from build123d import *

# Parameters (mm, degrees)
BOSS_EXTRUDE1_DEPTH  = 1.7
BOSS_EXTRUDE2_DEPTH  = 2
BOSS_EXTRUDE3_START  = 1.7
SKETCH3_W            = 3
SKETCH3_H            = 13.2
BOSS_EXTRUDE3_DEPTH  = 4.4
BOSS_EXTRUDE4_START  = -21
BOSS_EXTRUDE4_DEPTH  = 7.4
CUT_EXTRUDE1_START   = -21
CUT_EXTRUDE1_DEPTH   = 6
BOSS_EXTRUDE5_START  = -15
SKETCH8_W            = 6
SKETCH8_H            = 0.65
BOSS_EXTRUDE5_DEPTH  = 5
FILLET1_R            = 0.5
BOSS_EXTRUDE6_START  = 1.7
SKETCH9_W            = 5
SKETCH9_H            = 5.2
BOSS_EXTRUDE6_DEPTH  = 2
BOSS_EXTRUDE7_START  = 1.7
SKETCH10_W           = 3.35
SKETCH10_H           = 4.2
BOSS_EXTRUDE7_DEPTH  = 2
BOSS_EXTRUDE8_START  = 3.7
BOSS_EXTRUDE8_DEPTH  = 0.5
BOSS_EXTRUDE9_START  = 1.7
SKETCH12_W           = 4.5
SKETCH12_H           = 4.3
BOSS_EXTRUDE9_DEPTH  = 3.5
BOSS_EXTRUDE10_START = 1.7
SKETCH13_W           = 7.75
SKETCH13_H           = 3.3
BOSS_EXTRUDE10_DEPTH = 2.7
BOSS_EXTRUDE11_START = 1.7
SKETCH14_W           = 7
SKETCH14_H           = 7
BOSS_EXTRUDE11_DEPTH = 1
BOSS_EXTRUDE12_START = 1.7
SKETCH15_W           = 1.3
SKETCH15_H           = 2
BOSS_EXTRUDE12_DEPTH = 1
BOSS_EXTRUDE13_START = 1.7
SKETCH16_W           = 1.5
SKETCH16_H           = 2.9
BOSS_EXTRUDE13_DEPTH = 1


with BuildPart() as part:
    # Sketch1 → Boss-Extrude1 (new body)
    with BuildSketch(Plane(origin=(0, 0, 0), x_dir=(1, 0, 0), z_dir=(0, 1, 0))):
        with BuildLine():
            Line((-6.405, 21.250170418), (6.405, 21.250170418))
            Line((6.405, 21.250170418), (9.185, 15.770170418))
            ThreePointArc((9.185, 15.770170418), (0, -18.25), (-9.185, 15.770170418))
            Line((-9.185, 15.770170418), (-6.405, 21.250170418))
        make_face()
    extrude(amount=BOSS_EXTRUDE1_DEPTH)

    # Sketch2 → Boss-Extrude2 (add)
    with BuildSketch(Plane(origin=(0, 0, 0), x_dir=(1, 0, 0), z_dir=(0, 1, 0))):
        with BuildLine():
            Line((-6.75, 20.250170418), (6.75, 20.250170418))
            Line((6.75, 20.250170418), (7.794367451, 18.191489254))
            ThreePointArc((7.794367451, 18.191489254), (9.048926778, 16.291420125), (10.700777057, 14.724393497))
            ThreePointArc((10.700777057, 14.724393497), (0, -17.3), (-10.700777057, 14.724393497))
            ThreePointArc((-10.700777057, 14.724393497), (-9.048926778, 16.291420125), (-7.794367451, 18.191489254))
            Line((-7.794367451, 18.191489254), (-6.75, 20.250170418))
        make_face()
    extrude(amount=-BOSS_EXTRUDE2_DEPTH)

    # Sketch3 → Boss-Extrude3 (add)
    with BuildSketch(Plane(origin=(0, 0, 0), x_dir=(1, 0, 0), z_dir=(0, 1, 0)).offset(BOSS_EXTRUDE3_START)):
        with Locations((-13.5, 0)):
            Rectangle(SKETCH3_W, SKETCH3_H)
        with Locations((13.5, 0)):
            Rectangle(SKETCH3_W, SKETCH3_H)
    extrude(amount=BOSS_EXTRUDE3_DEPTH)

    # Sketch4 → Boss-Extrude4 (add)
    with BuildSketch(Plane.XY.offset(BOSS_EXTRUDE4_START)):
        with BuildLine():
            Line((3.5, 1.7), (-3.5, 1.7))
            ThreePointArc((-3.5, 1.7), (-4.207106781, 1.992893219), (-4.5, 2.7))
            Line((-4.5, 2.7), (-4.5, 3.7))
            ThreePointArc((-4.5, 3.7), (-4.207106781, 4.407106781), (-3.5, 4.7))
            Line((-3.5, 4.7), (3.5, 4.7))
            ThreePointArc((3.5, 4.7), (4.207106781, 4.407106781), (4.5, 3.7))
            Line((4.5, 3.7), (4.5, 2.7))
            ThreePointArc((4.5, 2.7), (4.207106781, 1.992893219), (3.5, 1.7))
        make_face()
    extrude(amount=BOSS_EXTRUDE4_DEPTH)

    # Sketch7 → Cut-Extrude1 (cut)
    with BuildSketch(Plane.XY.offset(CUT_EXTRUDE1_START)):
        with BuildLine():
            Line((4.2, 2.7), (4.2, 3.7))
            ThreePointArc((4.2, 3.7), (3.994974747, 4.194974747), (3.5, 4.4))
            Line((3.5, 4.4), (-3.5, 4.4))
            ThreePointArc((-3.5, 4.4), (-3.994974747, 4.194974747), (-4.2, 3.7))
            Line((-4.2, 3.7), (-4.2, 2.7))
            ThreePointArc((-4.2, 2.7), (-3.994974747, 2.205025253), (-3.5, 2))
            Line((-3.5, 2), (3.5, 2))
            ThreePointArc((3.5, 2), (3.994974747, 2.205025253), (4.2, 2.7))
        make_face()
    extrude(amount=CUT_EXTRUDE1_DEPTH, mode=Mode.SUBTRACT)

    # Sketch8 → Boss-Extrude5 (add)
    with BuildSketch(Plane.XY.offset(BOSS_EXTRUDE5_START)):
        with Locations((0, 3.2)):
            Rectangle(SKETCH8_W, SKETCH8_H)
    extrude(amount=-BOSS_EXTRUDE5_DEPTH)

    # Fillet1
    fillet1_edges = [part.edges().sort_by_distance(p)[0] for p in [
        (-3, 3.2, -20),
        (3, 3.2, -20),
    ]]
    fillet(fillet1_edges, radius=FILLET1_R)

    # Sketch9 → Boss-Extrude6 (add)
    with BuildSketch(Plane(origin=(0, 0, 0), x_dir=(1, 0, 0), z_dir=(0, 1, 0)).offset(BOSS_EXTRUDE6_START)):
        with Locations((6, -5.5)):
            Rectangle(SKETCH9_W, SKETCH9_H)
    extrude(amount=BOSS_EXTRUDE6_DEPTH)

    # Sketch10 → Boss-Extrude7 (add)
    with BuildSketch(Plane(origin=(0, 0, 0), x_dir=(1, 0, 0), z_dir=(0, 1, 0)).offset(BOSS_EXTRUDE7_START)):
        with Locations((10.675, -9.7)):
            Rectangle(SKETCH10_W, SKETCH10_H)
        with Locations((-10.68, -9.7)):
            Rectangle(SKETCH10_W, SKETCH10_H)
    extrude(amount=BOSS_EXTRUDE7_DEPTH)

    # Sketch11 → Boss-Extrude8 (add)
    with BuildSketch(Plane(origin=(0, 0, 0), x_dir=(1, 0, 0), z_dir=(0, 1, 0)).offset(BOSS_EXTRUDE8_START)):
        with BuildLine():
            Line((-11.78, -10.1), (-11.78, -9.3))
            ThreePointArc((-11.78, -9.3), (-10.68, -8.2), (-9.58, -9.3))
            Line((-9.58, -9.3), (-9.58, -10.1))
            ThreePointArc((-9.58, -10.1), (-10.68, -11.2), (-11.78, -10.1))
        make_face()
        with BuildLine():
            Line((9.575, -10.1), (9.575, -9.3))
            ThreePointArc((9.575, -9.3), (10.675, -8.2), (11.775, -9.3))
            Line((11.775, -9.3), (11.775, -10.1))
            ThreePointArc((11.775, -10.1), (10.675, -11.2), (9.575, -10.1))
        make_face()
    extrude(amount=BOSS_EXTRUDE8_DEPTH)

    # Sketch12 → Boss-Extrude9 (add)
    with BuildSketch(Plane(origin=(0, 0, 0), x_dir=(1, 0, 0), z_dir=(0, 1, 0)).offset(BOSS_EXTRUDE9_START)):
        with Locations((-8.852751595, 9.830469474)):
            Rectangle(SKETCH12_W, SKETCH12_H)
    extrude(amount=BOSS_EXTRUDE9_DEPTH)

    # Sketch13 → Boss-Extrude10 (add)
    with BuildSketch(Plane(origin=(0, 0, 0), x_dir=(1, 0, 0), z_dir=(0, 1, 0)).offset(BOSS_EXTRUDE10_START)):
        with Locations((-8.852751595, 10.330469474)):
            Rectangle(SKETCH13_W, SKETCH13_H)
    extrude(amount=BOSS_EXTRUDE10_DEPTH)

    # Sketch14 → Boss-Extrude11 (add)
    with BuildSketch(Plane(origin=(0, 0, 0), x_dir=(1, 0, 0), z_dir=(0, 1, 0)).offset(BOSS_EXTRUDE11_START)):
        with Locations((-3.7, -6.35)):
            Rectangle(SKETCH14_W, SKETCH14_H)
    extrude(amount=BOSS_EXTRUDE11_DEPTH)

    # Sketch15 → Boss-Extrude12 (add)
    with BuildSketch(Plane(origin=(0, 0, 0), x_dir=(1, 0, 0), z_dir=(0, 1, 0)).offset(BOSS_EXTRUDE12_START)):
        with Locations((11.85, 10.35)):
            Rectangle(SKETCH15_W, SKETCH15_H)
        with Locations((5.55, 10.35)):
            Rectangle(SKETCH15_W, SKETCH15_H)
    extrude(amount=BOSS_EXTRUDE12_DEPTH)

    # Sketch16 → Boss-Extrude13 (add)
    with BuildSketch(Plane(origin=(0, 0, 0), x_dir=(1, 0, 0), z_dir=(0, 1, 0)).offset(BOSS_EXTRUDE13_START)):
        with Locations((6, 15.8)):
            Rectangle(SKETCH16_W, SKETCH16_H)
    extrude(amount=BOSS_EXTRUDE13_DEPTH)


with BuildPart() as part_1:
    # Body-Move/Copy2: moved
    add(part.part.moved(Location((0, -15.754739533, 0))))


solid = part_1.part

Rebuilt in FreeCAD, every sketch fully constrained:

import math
import FreeCAD as App
import Part
import Sketcher
from FreeCAD import Vector


def edges_at(feature, points):
    """Names of the edges that pass closest to the given points."""
    edges = feature.Shape.Edges
    near = lambda p: min(range(len(edges)), key=lambda i: edges[i].distToShape(Part.Vertex(*p))[0])
    return sorted({f"Edge{near(p) + 1}" for p in points})

doc = App.newDocument("Part")
body = doc.addObject("PartDesign::Body", "Body")

sketch1 = body.newObject("Sketcher::SketchObject", "Sketch")
sketch1.AttachmentSupport = (doc.getObject("XZ_Plane"), [""])
sketch1.MapMode = "FlatFace"
sketch1.addGeometry(Part.LineSegment(Vector(6, -21, 0), Vector(-6, -21, 0)), False)
sketch1.addGeometry(Part.LineSegment(Vector(-6, -21, 0), Vector(-9, -16, 0)), False)
sketch1.addGeometry(Part.ArcOfCircle(Part.Circle(Vector(0, 0, 0), Vector(0, 0, 1), 18), math.radians(-60), math.radians(240)), False)
sketch1.addGeometry(Part.LineSegment(Vector(9, -16, 0), Vector(6, -21, 0)), False)
sketch1.addConstraint(Sketcher.Constraint("Coincident", 0, 2, 1, 1))
sketch1.addConstraint(Sketcher.Constraint("Coincident", 1, 2, 2, 2))
sketch1.addConstraint(Sketcher.Constraint("Coincident", 2, 1, 3, 1))
sketch1.addConstraint(Sketcher.Constraint("Coincident", 3, 2, 0, 1))
sketch1.addConstraint(Sketcher.Constraint("Horizontal", 0))
sketch1.addConstraint(Sketcher.Constraint("Coincident", 2, 3, -1, 1))
sketch1.addConstraint(Sketcher.Constraint("Horizontal", 1, 2, 2, 1))
sketch1.addConstraint(Sketcher.Constraint("Equal", 1, 3))
sketch1.addConstraint(Sketcher.Constraint("Radius", 2, 18.25))
sketch1.addConstraint(Sketcher.Constraint("DistanceX", 0, 2, 0, 1, 12.81))
sketch1.addConstraint(Sketcher.Constraint("DistanceX", 1, 2, 0, 2, 2.78))
sketch1.addConstraint(Sketcher.Constraint("DistanceY", 0, 2, 1, 2, 5.48))
pad1 = body.newObject("PartDesign::Pad", "Pad")
pad1.Profile = sketch1
pad1.Length = 1.7
pad1.Reversed = True

sketch2 = body.newObject("Sketcher::SketchObject", "Sketch001")
sketch2.AttachmentSupport = (doc.getObject("XZ_Plane"), [""])
sketch2.MapMode = "FlatFace"
sketch2.addGeometry(Part.LineSegment(Vector(6.8, -20.3, 0), Vector(-6.8, -20.3, 0)), False)
sketch2.addGeometry(Part.LineSegment(Vector(-6.8, -20.3, 0), Vector(-7.8, -18.2, 0)), False)
sketch2.addGeometry(Part.ArcOfCircle(Part.Circle(Vector(-16.7, -22.7, 0), Vector(0, 0, 1), 10), math.radians(27), math.radians(53)), False)
sketch2.addGeometry(Part.ArcOfCircle(Part.Circle(Vector(0, -0.5, 0), Vector(0, 0, 1), 17.8), math.radians(-53), math.radians(233)), False)
sketch2.addGeometry(Part.ArcOfCircle(Part.Circle(Vector(16.7, -22.7, 0), Vector(0, 0, 1), 10), math.radians(127), math.radians(153)), False)
sketch2.addGeometry(Part.LineSegment(Vector(7.8, -18.2, 0), Vector(6.8, -20.3, 0)), False)
sketch2.addConstraint(Sketcher.Constraint("Coincident", 0, 2, 1, 1))
sketch2.addConstraint(Sketcher.Constraint("Tangent", 1, 2, 2, 1))
sketch2.addConstraint(Sketcher.Constraint("Tangent", 2, 2, 3, 2))
sketch2.addConstraint(Sketcher.Constraint("Tangent", 3, 1, 4, 1))
sketch2.addConstraint(Sketcher.Constraint("Tangent", 4, 2, 5, 1))
sketch2.addConstraint(Sketcher.Constraint("Coincident", 5, 2, 0, 1))
sketch2.addConstraint(Sketcher.Constraint("Horizontal", 0))
sketch2.addConstraint(Sketcher.Constraint("Equal", 2, 4))
sketch2.addConstraint(Sketcher.Constraint("Symmetric", 2, 3, 4, 3, -2))
sketch2.addConstraint(Sketcher.Constraint("Horizontal", 1, 2, 4, 2))
sketch2.addConstraint(Sketcher.Constraint("Radius", 2, 10.0))
sketch2.addConstraint(Sketcher.Constraint("Radius", 3, 17.8))
sketch2.addConstraint(Sketcher.Constraint("DistanceX", 0, 2, 0, 1, 13.5))
sketch2.addConstraint(Sketcher.Constraint("DistanceY", 3, 3, -1, 1, 0.5))
sketch2.addConstraint(Sketcher.Constraint("DistanceX", 2, 3, 4, 3, 33.424899))
sketch2.addConstraint(Sketcher.Constraint("DistanceY", 0, 2, -1, 1, 20.25017))
pad2 = body.newObject("PartDesign::Pad", "Pad001")
pad2.Profile = sketch2
pad2.Length = 2

sketch3 = body.newObject("Sketcher::SketchObject", "Sketch002")
sketch3.AttachmentSupport = (doc.getObject("XZ_Plane"), [""])
sketch3.MapMode = "FlatFace"
sketch3.AttachmentOffset = App.Placement(Vector(0, 0, -1.7), App.Rotation())
sketch3.addGeometry(Part.LineSegment(Vector(-15, -6.6, 0), Vector(-15, 6.6, 0)), False)
sketch3.addGeometry(Part.LineSegment(Vector(-15, 6.6, 0), Vector(-12, 6.6, 0)), False)
sketch3.addGeometry(Part.LineSegment(Vector(-12, 6.6, 0), Vector(-12, -6.6, 0)), False)
sketch3.addGeometry(Part.LineSegment(Vector(-12, -6.6, 0), Vector(-15, -6.6, 0)), False)
sketch3.addGeometry(Part.LineSegment(Vector(12, -6.6, 0), Vector(12, 6.6, 0)), False)
sketch3.addGeometry(Part.LineSegment(Vector(12, 6.6, 0), Vector(15, 6.6, 0)), False)
sketch3.addGeometry(Part.LineSegment(Vector(15, 6.6, 0), Vector(15, -6.6, 0)), False)
sketch3.addGeometry(Part.LineSegment(Vector(15, -6.6, 0), Vector(12, -6.6, 0)), False)
sketch3.addConstraint(Sketcher.Constraint("Coincident", 0, 2, 1, 1))
sketch3.addConstraint(Sketcher.Constraint("Coincident", 1, 2, 2, 1))
sketch3.addConstraint(Sketcher.Constraint("Coincident", 2, 2, 3, 1))
sketch3.addConstraint(Sketcher.Constraint("Coincident", 3, 2, 0, 1))
sketch3.addConstraint(Sketcher.Constraint("Coincident", 4, 2, 5, 1))
sketch3.addConstraint(Sketcher.Constraint("Coincident", 5, 2, 6, 1))
sketch3.addConstraint(Sketcher.Constraint("Coincident", 6, 2, 7, 1))
sketch3.addConstraint(Sketcher.Constraint("Coincident", 7, 2, 4, 1))
sketch3.addConstraint(Sketcher.Constraint("Vertical", 0))
sketch3.addConstraint(Sketcher.Constraint("Horizontal", 1))
sketch3.addConstraint(Sketcher.Constraint("Vertical", 2))
sketch3.addConstraint(Sketcher.Constraint("Horizontal", 3))
sketch3.addConstraint(Sketcher.Constraint("Vertical", 4))
sketch3.addConstraint(Sketcher.Constraint("Horizontal", 5))
sketch3.addConstraint(Sketcher.Constraint("Vertical", 6))
sketch3.addConstraint(Sketcher.Constraint("Horizontal", 7))
sketch3.addConstraint(Sketcher.Constraint("Symmetric", 2, 2, 4, 2, -1, 1))
sketch3.addConstraint(Sketcher.Constraint("Symmetric", 0, 2, 6, 2, -1, 1))
sketch3.addConstraint(Sketcher.Constraint("Horizontal", 1, 2, 4, 2))
sketch3.addConstraint(Sketcher.Constraint("DistanceX", 1, 1, 1, 2, 3.0))
sketch3.addConstraint(Sketcher.Constraint("DistanceY", 0, 1, 0, 2, 13.2))
sketch3.addConstraint(Sketcher.Constraint("DistanceX", 0, 2, -1, 1, 15.0))
pad3 = body.newObject("PartDesign::Pad", "Pad002")
pad3.Profile = sketch3
pad3.Length = 4.4
pad3.Reversed = True

sketch4 = body.newObject("Sketcher::SketchObject", "Sketch003")
sketch4.AttachmentSupport = (doc.getObject("XY_Plane"), [""])
sketch4.MapMode = "FlatFace"
sketch4.AttachmentOffset = App.Placement(Vector(0, 0, -21), App.Rotation())
sketch4.addGeometry(Part.LineSegment(Vector(-3.5, 1.7, 0), Vector(3.5, 1.7, 0)), False)
sketch4.addGeometry(Part.ArcOfCircle(Part.Circle(Vector(3.5, 2.7, 0), Vector(0, 0, 1), 1), math.radians(-90), math.radians(0)), False)
sketch4.addGeometry(Part.LineSegment(Vector(4.5, 2.7, 0), Vector(4.5, 3.7, 0)), False)
sketch4.addGeometry(Part.ArcOfCircle(Part.Circle(Vector(3.5, 3.7, 0), Vector(0, 0, 1), 1), math.radians(0), math.radians(90)), False)
sketch4.addGeometry(Part.LineSegment(Vector(3.5, 4.7, 0), Vector(-3.5, 4.7, 0)), False)
sketch4.addGeometry(Part.ArcOfCircle(Part.Circle(Vector(-3.5, 3.7, 0), Vector(0, 0, 1), 1), math.radians(90), math.radians(180)), False)
sketch4.addGeometry(Part.LineSegment(Vector(-4.5, 3.7, 0), Vector(-4.5, 2.7, 0)), False)
sketch4.addGeometry(Part.ArcOfCircle(Part.Circle(Vector(-3.5, 2.7, 0), Vector(0, 0, 1), 1), math.radians(-180), math.radians(-90)), False)
sketch4.addConstraint(Sketcher.Constraint("Tangent", 0, 2, 1, 1))
sketch4.addConstraint(Sketcher.Constraint("Tangent", 1, 2, 2, 1))
sketch4.addConstraint(Sketcher.Constraint("Tangent", 2, 2, 3, 1))
sketch4.addConstraint(Sketcher.Constraint("Tangent", 3, 2, 4, 1))
sketch4.addConstraint(Sketcher.Constraint("Tangent", 4, 2, 5, 1))
sketch4.addConstraint(Sketcher.Constraint("Tangent", 5, 2, 6, 1))
sketch4.addConstraint(Sketcher.Constraint("Tangent", 6, 2, 7, 1))
sketch4.addConstraint(Sketcher.Constraint("Tangent", 7, 2, 0, 1))
sketch4.addConstraint(Sketcher.Constraint("Horizontal", 0))
sketch4.addConstraint(Sketcher.Constraint("Vertical", 2))
sketch4.addConstraint(Sketcher.Constraint("Horizontal", 4))
sketch4.addConstraint(Sketcher.Constraint("Vertical", 6))
sketch4.addConstraint(Sketcher.Constraint("Equal", 1, 3))
sketch4.addConstraint(Sketcher.Constraint("Equal", 3, 5))
sketch4.addConstraint(Sketcher.Constraint("Equal", 5, 7))
sketch4.addConstraint(Sketcher.Constraint("Radius", 1, 1.0))
sketch4.addConstraint(Sketcher.Constraint("DistanceX", 0, 1, 0, 2, 7.0))
sketch4.addConstraint(Sketcher.Constraint("DistanceY", 2, 1, 2, 2, 1.0))
sketch4.addConstraint(Sketcher.Constraint("DistanceX", -1, 1, 1, 3, 3.5))
sketch4.addConstraint(Sketcher.Constraint("DistanceY", -1, 1, 1, 3, 2.7))
pad4 = body.newObject("PartDesign::Pad", "Pad003")
pad4.Profile = sketch4
pad4.Length = 7.4

sketch5 = body.newObject("Sketcher::SketchObject", "Sketch004")
sketch5.AttachmentSupport = (doc.getObject("XY_Plane"), [""])
sketch5.MapMode = "FlatFace"
sketch5.AttachmentOffset = App.Placement(Vector(0, 0, -21), App.Rotation())
sketch5.addGeometry(Part.LineSegment(Vector(4.2, 2.7, 0), Vector(4.2, 3.7, 0)), False)
sketch5.addGeometry(Part.ArcOfCircle(Part.Circle(Vector(3.5, 3.7, 0), Vector(0, 0, 1), 0.7), math.radians(0), math.radians(90)), False)
sketch5.addGeometry(Part.LineSegment(Vector(3.5, 4.4, 0), Vector(-3.5, 4.4, 0)), False)
sketch5.addGeometry(Part.ArcOfCircle(Part.Circle(Vector(-3.5, 3.7, 0), Vector(0, 0, 1), 0.7), math.radians(90), math.radians(180)), False)
sketch5.addGeometry(Part.LineSegment(Vector(-4.2, 3.7, 0), Vector(-4.2, 2.7, 0)), False)
sketch5.addGeometry(Part.ArcOfCircle(Part.Circle(Vector(-3.5, 2.7, 0), Vector(0, 0, 1), 0.7), math.radians(180), math.radians(270)), False)
sketch5.addGeometry(Part.LineSegment(Vector(-3.5, 2, 0), Vector(3.5, 2, 0)), False)
sketch5.addGeometry(Part.ArcOfCircle(Part.Circle(Vector(3.5, 2.7, 0), Vector(0, 0, 1), 0.7), math.radians(-90), math.radians(0)), False)
sketch5.addConstraint(Sketcher.Constraint("Tangent", 0, 2, 1, 1))
sketch5.addConstraint(Sketcher.Constraint("Tangent", 1, 2, 2, 1))
sketch5.addConstraint(Sketcher.Constraint("Tangent", 2, 2, 3, 1))
sketch5.addConstraint(Sketcher.Constraint("Tangent", 3, 2, 4, 1))
sketch5.addConstraint(Sketcher.Constraint("Tangent", 4, 2, 5, 1))
sketch5.addConstraint(Sketcher.Constraint("Tangent", 5, 2, 6, 1))
sketch5.addConstraint(Sketcher.Constraint("Tangent", 6, 2, 7, 1))
sketch5.addConstraint(Sketcher.Constraint("Tangent", 7, 2, 0, 1))
sketch5.addConstraint(Sketcher.Constraint("Vertical", 0))
sketch5.addConstraint(Sketcher.Constraint("Horizontal", 2))
sketch5.addConstraint(Sketcher.Constraint("Vertical", 4))
sketch5.addConstraint(Sketcher.Constraint("Horizontal", 6))
sketch5.addConstraint(Sketcher.Constraint("Equal", 1, 3))
sketch5.addConstraint(Sketcher.Constraint("Equal", 3, 5))
sketch5.addConstraint(Sketcher.Constraint("Equal", 5, 7))
sketch5.addConstraint(Sketcher.Constraint("Radius", 1, 0.7))
sketch5.addConstraint(Sketcher.Constraint("DistanceX", 2, 2, 2, 1, 7.0))
sketch5.addConstraint(Sketcher.Constraint("DistanceY", 0, 1, 0, 2, 1.0))
sketch5.addConstraint(Sketcher.Constraint("DistanceY", -1, 1, 5, 2, 2.0))
sketch5.addConstraint(Sketcher.Constraint("DistanceX", -1, 1, 1, 3, 3.5))
pocket1 = body.newObject("PartDesign::Pocket", "Pocket")
pocket1.Profile = sketch5
pocket1.Length = 6
pocket1.Reversed = True

sketch6 = body.newObject("Sketcher::SketchObject", "Sketch005")
sketch6.AttachmentSupport = (doc.getObject("XY_Plane"), [""])
sketch6.MapMode = "FlatFace"
sketch6.AttachmentOffset = App.Placement(Vector(0, 0, -15), App.Rotation())
sketch6.addGeometry(Part.LineSegment(Vector(-3, 3.5, 0), Vector(-3, 2.9, 0)), False)
sketch6.addGeometry(Part.LineSegment(Vector(-3, 2.9, 0), Vector(3, 2.9, 0)), False)
sketch6.addGeometry(Part.LineSegment(Vector(3, 2.9, 0), Vector(3, 3.5, 0)), False)
sketch6.addGeometry(Part.LineSegment(Vector(3, 3.5, 0), Vector(-3, 3.5, 0)), False)
sketch6.addConstraint(Sketcher.Constraint("Coincident", 0, 2, 1, 1))
sketch6.addConstraint(Sketcher.Constraint("Coincident", 1, 2, 2, 1))
sketch6.addConstraint(Sketcher.Constraint("Coincident", 2, 2, 3, 1))
sketch6.addConstraint(Sketcher.Constraint("Coincident", 3, 2, 0, 1))
sketch6.addConstraint(Sketcher.Constraint("Vertical", 0))
sketch6.addConstraint(Sketcher.Constraint("Horizontal", 1))
sketch6.addConstraint(Sketcher.Constraint("Vertical", 2))
sketch6.addConstraint(Sketcher.Constraint("Horizontal", 3))
sketch6.addConstraint(Sketcher.Constraint("DistanceX", 1, 1, 1, 2, 6.0))
sketch6.addConstraint(Sketcher.Constraint("DistanceX", 0, 2, -1, 1, 3.0))
sketch6.addConstraint(Sketcher.Constraint("DistanceY", 0, 2, 0, 1, 0.65))
sketch6.addConstraint(Sketcher.Constraint("DistanceY", -1, 1, 0, 2, 2.875))
pad5 = body.newObject("PartDesign::Pad", "Pad004")
pad5.Profile = sketch6
pad5.Length = 5
pad5.Reversed = True
doc.recompute()

fillet = body.newObject("PartDesign::Fillet", "Fillet")
fillet.Base = (pad5, edges_at(pad5, [(-3, 3.2, -20), (3, 3.2, -20)]))
fillet.Radius = 0.5

sketch7 = body.newObject("Sketcher::SketchObject", "Sketch006")
sketch7.AttachmentSupport = (doc.getObject("XZ_Plane"), [""])
sketch7.MapMode = "FlatFace"
sketch7.AttachmentOffset = App.Placement(Vector(0, 0, -1.7), App.Rotation())
sketch7.addGeometry(Part.LineSegment(Vector(4, 3, 0), Vector(4, 8, 0)), False)
sketch7.addGeometry(Part.LineSegment(Vector(4, 8, 0), Vector(8, 8, 0)), False)
sketch7.addGeometry(Part.LineSegment(Vector(8, 8, 0), Vector(8, 3, 0)), False)
sketch7.addGeometry(Part.LineSegment(Vector(8, 3, 0), Vector(4, 3, 0)), False)
sketch7.addConstraint(Sketcher.Constraint("Coincident", 0, 2, 1, 1))
sketch7.addConstraint(Sketcher.Constraint("Coincident", 1, 2, 2, 1))
sketch7.addConstraint(Sketcher.Constraint("Coincident", 2, 2, 3, 1))
sketch7.addConstraint(Sketcher.Constraint("Coincident", 3, 2, 0, 1))
sketch7.addConstraint(Sketcher.Constraint("Vertical", 0))
sketch7.addConstraint(Sketcher.Constraint("Horizontal", 1))
sketch7.addConstraint(Sketcher.Constraint("Vertical", 2))
sketch7.addConstraint(Sketcher.Constraint("Horizontal", 3))
sketch7.addConstraint(Sketcher.Constraint("DistanceX", 1, 1, 1, 2, 5.0))
sketch7.addConstraint(Sketcher.Constraint("DistanceY", 0, 1, 0, 2, 5.2))
sketch7.addConstraint(Sketcher.Constraint("DistanceX", -1, 1, 0, 2, 3.5))
sketch7.addConstraint(Sketcher.Constraint("DistanceY", -1, 1, 0, 2, 8.1))
pad6 = body.newObject("PartDesign::Pad", "Pad005")
pad6.Profile = sketch7
pad6.Length = 2
pad6.Reversed = True

sketch8 = body.newObject("Sketcher::SketchObject", "Sketch007")
sketch8.AttachmentSupport = (doc.getObject("XZ_Plane"), [""])
sketch8.MapMode = "FlatFace"
sketch8.AttachmentOffset = App.Placement(Vector(0, 0, -1.7), App.Rotation())
sketch8.addGeometry(Part.LineSegment(Vector(9, 7.6, 0), Vector(9, 11.8, 0)), False)
sketch8.addGeometry(Part.LineSegment(Vector(9, 11.8, 0), Vector(12.3, 11.8, 0)), False)
sketch8.addGeometry(Part.LineSegment(Vector(12.3, 11.8, 0), Vector(12.3, 7.6, 0)), False)
sketch8.addGeometry(Part.LineSegment(Vector(12.3, 7.6, 0), Vector(9, 7.6, 0)), False)
sketch8.addGeometry(Part.LineSegment(Vector(-12.4, 7.6, 0), Vector(-12.4, 11.8, 0)), False)
sketch8.addGeometry(Part.LineSegment(Vector(-12.4, 11.8, 0), Vector(-9, 11.8, 0)), False)
sketch8.addGeometry(Part.LineSegment(Vector(-9, 11.8, 0), Vector(-9, 7.6, 0)), False)
sketch8.addGeometry(Part.LineSegment(Vector(-9, 7.6, 0), Vector(-12.4, 7.6, 0)), False)
sketch8.addConstraint(Sketcher.Constraint("Coincident", 0, 2, 1, 1))
sketch8.addConstraint(Sketcher.Constraint("Coincident", 1, 2, 2, 1))
sketch8.addConstraint(Sketcher.Constraint("Coincident", 2, 2, 3, 1))
sketch8.addConstraint(Sketcher.Constraint("Coincident", 3, 2, 0, 1))
sketch8.addConstraint(Sketcher.Constraint("Coincident", 4, 2, 5, 1))
sketch8.addConstraint(Sketcher.Constraint("Coincident", 5, 2, 6, 1))
sketch8.addConstraint(Sketcher.Constraint("Coincident", 6, 2, 7, 1))
sketch8.addConstraint(Sketcher.Constraint("Coincident", 7, 2, 4, 1))
sketch8.addConstraint(Sketcher.Constraint("Vertical", 0))
sketch8.addConstraint(Sketcher.Constraint("Horizontal", 1))
sketch8.addConstraint(Sketcher.Constraint("Vertical", 2))
sketch8.addConstraint(Sketcher.Constraint("Horizontal", 3))
sketch8.addConstraint(Sketcher.Constraint("Vertical", 4))
sketch8.addConstraint(Sketcher.Constraint("Horizontal", 5))
sketch8.addConstraint(Sketcher.Constraint("Vertical", 6))
sketch8.addConstraint(Sketcher.Constraint("Horizontal", 7))
sketch8.addConstraint(Sketcher.Constraint("Horizontal", 1, 2, 4, 2))
sketch8.addConstraint(Sketcher.Constraint("Horizontal", 3, 2, 6, 2))
sketch8.addConstraint(Sketcher.Constraint("Equal", 3, 5))
sketch8.addConstraint(Sketcher.Constraint("DistanceY", 0, 1, 0, 2, 4.2))
sketch8.addConstraint(Sketcher.Constraint("DistanceX", -1, 1, 0, 2, 9.0))
sketch8.addConstraint(Sketcher.Constraint("DistanceX", 1, 1, 1, 2, 3.35))
sketch8.addConstraint(Sketcher.Constraint("DistanceY", -1, 1, 0, 2, 11.8))
sketch8.addConstraint(Sketcher.Constraint("DistanceX", 4, 2, -1, 1, 12.355))
pad7 = body.newObject("PartDesign::Pad", "Pad006")
pad7.Profile = sketch8
pad7.Length = 2
pad7.Reversed = True

sketch9 = body.newObject("Sketcher::SketchObject", "Sketch008")
sketch9.AttachmentSupport = (doc.getObject("XZ_Plane"), [""])
sketch9.MapMode = "FlatFace"
sketch9.AttachmentOffset = App.Placement(Vector(0, 0, -3.7), App.Rotation())
sketch9.addGeometry(Part.LineSegment(Vector(-11.8, 9.3, 0), Vector(-11.8, 10.1, 0)), False)
sketch9.addGeometry(Part.ArcOfCircle(Part.Circle(Vector(-10.7, 10.1, 0), Vector(0, 0, 1), 1.1), math.radians(0), math.radians(180)), False)
sketch9.addGeometry(Part.LineSegment(Vector(-9.6, 10.1, 0), Vector(-9.6, 9.3, 0)), False)
sketch9.addGeometry(Part.ArcOfCircle(Part.Circle(Vector(-10.7, 9.3, 0), Vector(0, 0, 1), 1.1), math.radians(180), math.radians(360)), False)
sketch9.addGeometry(Part.LineSegment(Vector(9.6, 9.3, 0), Vector(9.6, 10.1, 0)), False)
sketch9.addGeometry(Part.ArcOfCircle(Part.Circle(Vector(10.7, 10.1, 0), Vector(0, 0, 1), 1.1), math.radians(0), math.radians(180)), False)
sketch9.addGeometry(Part.LineSegment(Vector(11.8, 10.1, 0), Vector(11.8, 9.3, 0)), False)
sketch9.addGeometry(Part.ArcOfCircle(Part.Circle(Vector(10.7, 9.3, 0), Vector(0, 0, 1), 1.1), math.radians(180), math.radians(360)), False)
sketch9.addConstraint(Sketcher.Constraint("Tangent", 0, 2, 1, 2))
sketch9.addConstraint(Sketcher.Constraint("Tangent", 1, 1, 2, 1))
sketch9.addConstraint(Sketcher.Constraint("Tangent", 2, 2, 3, 2))
sketch9.addConstraint(Sketcher.Constraint("Tangent", 3, 1, 0, 1))
sketch9.addConstraint(Sketcher.Constraint("Tangent", 4, 2, 5, 2))
sketch9.addConstraint(Sketcher.Constraint("Tangent", 5, 1, 6, 1))
sketch9.addConstraint(Sketcher.Constraint("Tangent", 6, 2, 7, 2))
sketch9.addConstraint(Sketcher.Constraint("Tangent", 7, 1, 4, 1))
sketch9.addConstraint(Sketcher.Constraint("Vertical", 0))
sketch9.addConstraint(Sketcher.Constraint("Vertical", 2))
sketch9.addConstraint(Sketcher.Constraint("Vertical", 4))
sketch9.addConstraint(Sketcher.Constraint("Vertical", 6))
sketch9.addConstraint(Sketcher.Constraint("Equal", 3, 5))
sketch9.addConstraint(Sketcher.Constraint("Horizontal", 1, 3, 5, 3))
sketch9.addConstraint(Sketcher.Constraint("Horizontal", 3, 3, 7, 3))
sketch9.addConstraint(Sketcher.Constraint("Radius", 1, 1.1))
sketch9.addConstraint(Sketcher.Constraint("DistanceY", 0, 1, 0, 2, 0.8))
sketch9.addConstraint(Sketcher.Constraint("DistanceY", -1, 1, 1, 3, 10.1))
sketch9.addConstraint(Sketcher.Constraint("DistanceX", 1, 3, -1, 1, 10.68))
sketch9.addConstraint(Sketcher.Constraint("DistanceX", -1, 1, 5, 3, 10.675))
pad8 = body.newObject("PartDesign::Pad", "Pad007")
pad8.Profile = sketch9
pad8.Length = 0.5
pad8.Reversed = True

sketch10 = body.newObject("Sketcher::SketchObject", "Sketch009")
sketch10.AttachmentSupport = (doc.getObject("XZ_Plane"), [""])
sketch10.MapMode = "FlatFace"
sketch10.AttachmentOffset = App.Placement(Vector(0, 0, -1.7), App.Rotation())
sketch10.addGeometry(Part.LineSegment(Vector(-11.1, -12, 0), Vector(-11.1, -7.7, 0)), False)
sketch10.addGeometry(Part.LineSegment(Vector(-11.1, -7.7, 0), Vector(-6.6, -7.7, 0)), False)
sketch10.addGeometry(Part.LineSegment(Vector(-6.6, -7.7, 0), Vector(-6.6, -12, 0)), False)
sketch10.addGeometry(Part.LineSegment(Vector(-6.6, -12, 0), Vector(-11.1, -12, 0)), False)
sketch10.addConstraint(Sketcher.Constraint("Coincident", 0, 2, 1, 1))
sketch10.addConstraint(Sketcher.Constraint("Coincident", 1, 2, 2, 1))
sketch10.addConstraint(Sketcher.Constraint("Coincident", 2, 2, 3, 1))
sketch10.addConstraint(Sketcher.Constraint("Coincident", 3, 2, 0, 1))
sketch10.addConstraint(Sketcher.Constraint("Vertical", 0))
sketch10.addConstraint(Sketcher.Constraint("Horizontal", 1))
sketch10.addConstraint(Sketcher.Constraint("Vertical", 2))
sketch10.addConstraint(Sketcher.Constraint("Horizontal", 3))
sketch10.addConstraint(Sketcher.Constraint("DistanceX", 1, 1, 1, 2, 4.5))
sketch10.addConstraint(Sketcher.Constraint("DistanceY", 0, 1, 0, 2, 4.3))
sketch10.addConstraint(Sketcher.Constraint("DistanceX", 0, 2, -1, 1, 11.102752))
sketch10.addConstraint(Sketcher.Constraint("DistanceY", 0, 2, -1, 1, 7.680469))
pad9 = body.newObject("PartDesign::Pad", "Pad008")
pad9.Profile = sketch10
pad9.Length = 3.5
pad9.Reversed = True

sketch11 = body.newObject("Sketcher::SketchObject", "Sketch010")
sketch11.AttachmentSupport = (doc.getObject("XZ_Plane"), [""])
sketch11.MapMode = "FlatFace"
sketch11.AttachmentOffset = App.Placement(Vector(0, 0, -1.7), App.Rotation())
sketch11.addGeometry(Part.LineSegment(Vector(-12.7, -12, 0), Vector(-12.7, -8.7, 0)), False)
sketch11.addGeometry(Part.LineSegment(Vector(-12.7, -8.7, 0), Vector(-5, -8.7, 0)), False)
sketch11.addGeometry(Part.LineSegment(Vector(-5, -8.7, 0), Vector(-5, -12, 0)), False)
sketch11.addGeometry(Part.LineSegment(Vector(-5, -12, 0), Vector(-12.7, -12, 0)), False)
sketch11.addConstraint(Sketcher.Constraint("Coincident", 0, 2, 1, 1))
sketch11.addConstraint(Sketcher.Constraint("Coincident", 1, 2, 2, 1))
sketch11.addConstraint(Sketcher.Constraint("Coincident", 2, 2, 3, 1))
sketch11.addConstraint(Sketcher.Constraint("Coincident", 3, 2, 0, 1))
sketch11.addConstraint(Sketcher.Constraint("Vertical", 0))
sketch11.addConstraint(Sketcher.Constraint("Horizontal", 1))
sketch11.addConstraint(Sketcher.Constraint("Vertical", 2))
sketch11.addConstraint(Sketcher.Constraint("Horizontal", 3))
sketch11.addConstraint(Sketcher.Constraint("DistanceY", 0, 1, 0, 2, 3.3))
sketch11.addConstraint(Sketcher.Constraint("DistanceX", 1, 1, 1, 2, 7.75))
sketch11.addConstraint(Sketcher.Constraint("DistanceX", 0, 2, -1, 1, 12.727752))
sketch11.addConstraint(Sketcher.Constraint("DistanceY", 0, 2, -1, 1, 8.680469))
pad10 = body.newObject("PartDesign::Pad", "Pad009")
pad10.Profile = sketch11
pad10.Length = 2.7
pad10.Reversed = True

sketch12 = body.newObject("Sketcher::SketchObject", "Sketch011")
sketch12.AttachmentSupport = (doc.getObject("XZ_Plane"), [""])
sketch12.MapMode = "FlatFace"
sketch12.AttachmentOffset = App.Placement(Vector(0, 0, -1.7), App.Rotation())
sketch12.addGeometry(Part.LineSegment(Vector(-7, 3, 0), Vector(-7, 10, 0)), False)
sketch12.addGeometry(Part.LineSegment(Vector(-7, 10, 0), Vector(0, 10, 0)), False)
sketch12.addGeometry(Part.LineSegment(Vector(0, 10, 0), Vector(0, 3, 0)), False)
sketch12.addGeometry(Part.LineSegment(Vector(0, 3, 0), Vector(-7, 3, 0)), False)
sketch12.addConstraint(Sketcher.Constraint("Coincident", 0, 2, 1, 1))
sketch12.addConstraint(Sketcher.Constraint("Coincident", 1, 2, 2, 1))
sketch12.addConstraint(Sketcher.Constraint("Coincident", 2, 2, 3, 1))
sketch12.addConstraint(Sketcher.Constraint("Coincident", 3, 2, 0, 1))
sketch12.addConstraint(Sketcher.Constraint("Vertical", 0))
sketch12.addConstraint(Sketcher.Constraint("Horizontal", 1))
sketch12.addConstraint(Sketcher.Constraint("Vertical", 2))
sketch12.addConstraint(Sketcher.Constraint("Horizontal", 3))
sketch12.addConstraint(Sketcher.Constraint("Equal", 3, 0))
sketch12.addConstraint(Sketcher.Constraint("DistanceX", 1, 1, 1, 2, 7.0))
sketch12.addConstraint(Sketcher.Constraint("DistanceX", 0, 2, -1, 1, 7.2))
sketch12.addConstraint(Sketcher.Constraint("DistanceY", -1, 1, 0, 2, 9.85))
pad11 = body.newObject("PartDesign::Pad", "Pad010")
pad11.Profile = sketch12
pad11.Length = 1
pad11.Reversed = True

sketch13 = body.newObject("Sketcher::SketchObject", "Sketch012")
sketch13.AttachmentSupport = (doc.getObject("XZ_Plane"), [""])
sketch13.MapMode = "FlatFace"
sketch13.AttachmentOffset = App.Placement(Vector(0, 0, -1.7), App.Rotation())
sketch13.addGeometry(Part.LineSegment(Vector(11.2, -11.3, 0), Vector(11.2, -9.3, 0)), False)
sketch13.addGeometry(Part.LineSegment(Vector(11.2, -9.3, 0), Vector(12.5, -9.3, 0)), False)
sketch13.addGeometry(Part.LineSegment(Vector(12.5, -9.3, 0), Vector(12.5, -11.3, 0)), False)
sketch13.addGeometry(Part.LineSegment(Vector(12.5, -11.3, 0), Vector(11.2, -11.3, 0)), False)
sketch13.addGeometry(Part.LineSegment(Vector(4.9, -11.3, 0), Vector(4.9, -9.3, 0)), False)
sketch13.addGeometry(Part.LineSegment(Vector(4.9, -9.3, 0), Vector(6.2, -9.3, 0)), False)
sketch13.addGeometry(Part.LineSegment(Vector(6.2, -9.3, 0), Vector(6.2, -11.3, 0)), False)
sketch13.addGeometry(Part.LineSegment(Vector(6.2, -11.3, 0), Vector(4.9, -11.3, 0)), False)
sketch13.addConstraint(Sketcher.Constraint("Coincident", 0, 2, 1, 1))
sketch13.addConstraint(Sketcher.Constraint("Coincident", 1, 2, 2, 1))
sketch13.addConstraint(Sketcher.Constraint("Coincident", 2, 2, 3, 1))
sketch13.addConstraint(Sketcher.Constraint("Coincident", 3, 2, 0, 1))
sketch13.addConstraint(Sketcher.Constraint("Coincident", 4, 2, 5, 1))
sketch13.addConstraint(Sketcher.Constraint("Coincident", 5, 2, 6, 1))
sketch13.addConstraint(Sketcher.Constraint("Coincident", 6, 2, 7, 1))
sketch13.addConstraint(Sketcher.Constraint("Coincident", 7, 2, 4, 1))
sketch13.addConstraint(Sketcher.Constraint("Vertical", 0))
sketch13.addConstraint(Sketcher.Constraint("Horizontal", 1))
sketch13.addConstraint(Sketcher.Constraint("Vertical", 2))
sketch13.addConstraint(Sketcher.Constraint("Horizontal", 3))
sketch13.addConstraint(Sketcher.Constraint("Vertical", 4))
sketch13.addConstraint(Sketcher.Constraint("Horizontal", 5))
sketch13.addConstraint(Sketcher.Constraint("Vertical", 6))
sketch13.addConstraint(Sketcher.Constraint("Horizontal", 7))
sketch13.addConstraint(Sketcher.Constraint("Horizontal", 1, 2, 4, 2))
sketch13.addConstraint(Sketcher.Constraint("Horizontal", 3, 2, 6, 2))
sketch13.addConstraint(Sketcher.Constraint("Equal", 3, 5))
sketch13.addConstraint(Sketcher.Constraint("DistanceY", 0, 1, 0, 2, 2.0))
sketch13.addConstraint(Sketcher.Constraint("DistanceX", 1, 1, 1, 2, 1.3))
sketch13.addConstraint(Sketcher.Constraint("DistanceX", 5, 2, 0, 2, 5.0))
sketch13.addConstraint(Sketcher.Constraint("DistanceX", -1, 1, 0, 2, 11.2))
sketch13.addConstraint(Sketcher.Constraint("DistanceY", 0, 2, -1, 1, 9.35))
pad12 = body.newObject("PartDesign::Pad", "Pad011")
pad12.Profile = sketch13
pad12.Length = 1
pad12.Reversed = True

sketch14 = body.newObject("Sketcher::SketchObject", "Sketch013")
sketch14.AttachmentSupport = (doc.getObject("XZ_Plane"), [""])
sketch14.MapMode = "FlatFace"
sketch14.AttachmentOffset = App.Placement(Vector(0, 0, -1.7), App.Rotation())
sketch14.addGeometry(Part.LineSegment(Vector(5.2, -17.2, 0), Vector(5.2, -14.3, 0)), False)
sketch14.addGeometry(Part.LineSegment(Vector(5.2, -14.3, 0), Vector(6.8, -14.3, 0)), False)
sketch14.addGeometry(Part.LineSegment(Vector(6.8, -14.3, 0), Vector(6.8, -17.2, 0)), False)
sketch14.addGeometry(Part.LineSegment(Vector(6.8, -17.2, 0), Vector(5.2, -17.2, 0)), False)
sketch14.addConstraint(Sketcher.Constraint("Coincident", 0, 2, 1, 1))
sketch14.addConstraint(Sketcher.Constraint("Coincident", 1, 2, 2, 1))
sketch14.addConstraint(Sketcher.Constraint("Coincident", 2, 2, 3, 1))
sketch14.addConstraint(Sketcher.Constraint("Coincident", 3, 2, 0, 1))
sketch14.addConstraint(Sketcher.Constraint("Vertical", 0))
sketch14.addConstraint(Sketcher.Constraint("Horizontal", 1))
sketch14.addConstraint(Sketcher.Constraint("Vertical", 2))
sketch14.addConstraint(Sketcher.Constraint("Horizontal", 3))
sketch14.addConstraint(Sketcher.Constraint("DistanceX", 1, 1, 1, 2, 1.5))
sketch14.addConstraint(Sketcher.Constraint("DistanceY", 0, 1, 0, 2, 2.9))
sketch14.addConstraint(Sketcher.Constraint("DistanceX", -1, 1, 0, 2, 5.25))
sketch14.addConstraint(Sketcher.Constraint("DistanceY", 0, 2, -1, 1, 14.35))
pad13 = body.newObject("PartDesign::Pad", "Pad012")
pad13.Profile = sketch14
pad13.Length = 1
pad13.Reversed = True
body2 = doc.addObject("PartDesign::Body", "Body001")
doc.recompute()

body.Placement = App.Placement(Vector(0, -15.75474, 0), App.Rotation(Vector(0, 0, 1), 0))
boolean = body2.newObject("PartDesign::Boolean", "Boolean")
boolean.Type = "Fuse"
boolean.addObjects([body])

doc.recompute()
